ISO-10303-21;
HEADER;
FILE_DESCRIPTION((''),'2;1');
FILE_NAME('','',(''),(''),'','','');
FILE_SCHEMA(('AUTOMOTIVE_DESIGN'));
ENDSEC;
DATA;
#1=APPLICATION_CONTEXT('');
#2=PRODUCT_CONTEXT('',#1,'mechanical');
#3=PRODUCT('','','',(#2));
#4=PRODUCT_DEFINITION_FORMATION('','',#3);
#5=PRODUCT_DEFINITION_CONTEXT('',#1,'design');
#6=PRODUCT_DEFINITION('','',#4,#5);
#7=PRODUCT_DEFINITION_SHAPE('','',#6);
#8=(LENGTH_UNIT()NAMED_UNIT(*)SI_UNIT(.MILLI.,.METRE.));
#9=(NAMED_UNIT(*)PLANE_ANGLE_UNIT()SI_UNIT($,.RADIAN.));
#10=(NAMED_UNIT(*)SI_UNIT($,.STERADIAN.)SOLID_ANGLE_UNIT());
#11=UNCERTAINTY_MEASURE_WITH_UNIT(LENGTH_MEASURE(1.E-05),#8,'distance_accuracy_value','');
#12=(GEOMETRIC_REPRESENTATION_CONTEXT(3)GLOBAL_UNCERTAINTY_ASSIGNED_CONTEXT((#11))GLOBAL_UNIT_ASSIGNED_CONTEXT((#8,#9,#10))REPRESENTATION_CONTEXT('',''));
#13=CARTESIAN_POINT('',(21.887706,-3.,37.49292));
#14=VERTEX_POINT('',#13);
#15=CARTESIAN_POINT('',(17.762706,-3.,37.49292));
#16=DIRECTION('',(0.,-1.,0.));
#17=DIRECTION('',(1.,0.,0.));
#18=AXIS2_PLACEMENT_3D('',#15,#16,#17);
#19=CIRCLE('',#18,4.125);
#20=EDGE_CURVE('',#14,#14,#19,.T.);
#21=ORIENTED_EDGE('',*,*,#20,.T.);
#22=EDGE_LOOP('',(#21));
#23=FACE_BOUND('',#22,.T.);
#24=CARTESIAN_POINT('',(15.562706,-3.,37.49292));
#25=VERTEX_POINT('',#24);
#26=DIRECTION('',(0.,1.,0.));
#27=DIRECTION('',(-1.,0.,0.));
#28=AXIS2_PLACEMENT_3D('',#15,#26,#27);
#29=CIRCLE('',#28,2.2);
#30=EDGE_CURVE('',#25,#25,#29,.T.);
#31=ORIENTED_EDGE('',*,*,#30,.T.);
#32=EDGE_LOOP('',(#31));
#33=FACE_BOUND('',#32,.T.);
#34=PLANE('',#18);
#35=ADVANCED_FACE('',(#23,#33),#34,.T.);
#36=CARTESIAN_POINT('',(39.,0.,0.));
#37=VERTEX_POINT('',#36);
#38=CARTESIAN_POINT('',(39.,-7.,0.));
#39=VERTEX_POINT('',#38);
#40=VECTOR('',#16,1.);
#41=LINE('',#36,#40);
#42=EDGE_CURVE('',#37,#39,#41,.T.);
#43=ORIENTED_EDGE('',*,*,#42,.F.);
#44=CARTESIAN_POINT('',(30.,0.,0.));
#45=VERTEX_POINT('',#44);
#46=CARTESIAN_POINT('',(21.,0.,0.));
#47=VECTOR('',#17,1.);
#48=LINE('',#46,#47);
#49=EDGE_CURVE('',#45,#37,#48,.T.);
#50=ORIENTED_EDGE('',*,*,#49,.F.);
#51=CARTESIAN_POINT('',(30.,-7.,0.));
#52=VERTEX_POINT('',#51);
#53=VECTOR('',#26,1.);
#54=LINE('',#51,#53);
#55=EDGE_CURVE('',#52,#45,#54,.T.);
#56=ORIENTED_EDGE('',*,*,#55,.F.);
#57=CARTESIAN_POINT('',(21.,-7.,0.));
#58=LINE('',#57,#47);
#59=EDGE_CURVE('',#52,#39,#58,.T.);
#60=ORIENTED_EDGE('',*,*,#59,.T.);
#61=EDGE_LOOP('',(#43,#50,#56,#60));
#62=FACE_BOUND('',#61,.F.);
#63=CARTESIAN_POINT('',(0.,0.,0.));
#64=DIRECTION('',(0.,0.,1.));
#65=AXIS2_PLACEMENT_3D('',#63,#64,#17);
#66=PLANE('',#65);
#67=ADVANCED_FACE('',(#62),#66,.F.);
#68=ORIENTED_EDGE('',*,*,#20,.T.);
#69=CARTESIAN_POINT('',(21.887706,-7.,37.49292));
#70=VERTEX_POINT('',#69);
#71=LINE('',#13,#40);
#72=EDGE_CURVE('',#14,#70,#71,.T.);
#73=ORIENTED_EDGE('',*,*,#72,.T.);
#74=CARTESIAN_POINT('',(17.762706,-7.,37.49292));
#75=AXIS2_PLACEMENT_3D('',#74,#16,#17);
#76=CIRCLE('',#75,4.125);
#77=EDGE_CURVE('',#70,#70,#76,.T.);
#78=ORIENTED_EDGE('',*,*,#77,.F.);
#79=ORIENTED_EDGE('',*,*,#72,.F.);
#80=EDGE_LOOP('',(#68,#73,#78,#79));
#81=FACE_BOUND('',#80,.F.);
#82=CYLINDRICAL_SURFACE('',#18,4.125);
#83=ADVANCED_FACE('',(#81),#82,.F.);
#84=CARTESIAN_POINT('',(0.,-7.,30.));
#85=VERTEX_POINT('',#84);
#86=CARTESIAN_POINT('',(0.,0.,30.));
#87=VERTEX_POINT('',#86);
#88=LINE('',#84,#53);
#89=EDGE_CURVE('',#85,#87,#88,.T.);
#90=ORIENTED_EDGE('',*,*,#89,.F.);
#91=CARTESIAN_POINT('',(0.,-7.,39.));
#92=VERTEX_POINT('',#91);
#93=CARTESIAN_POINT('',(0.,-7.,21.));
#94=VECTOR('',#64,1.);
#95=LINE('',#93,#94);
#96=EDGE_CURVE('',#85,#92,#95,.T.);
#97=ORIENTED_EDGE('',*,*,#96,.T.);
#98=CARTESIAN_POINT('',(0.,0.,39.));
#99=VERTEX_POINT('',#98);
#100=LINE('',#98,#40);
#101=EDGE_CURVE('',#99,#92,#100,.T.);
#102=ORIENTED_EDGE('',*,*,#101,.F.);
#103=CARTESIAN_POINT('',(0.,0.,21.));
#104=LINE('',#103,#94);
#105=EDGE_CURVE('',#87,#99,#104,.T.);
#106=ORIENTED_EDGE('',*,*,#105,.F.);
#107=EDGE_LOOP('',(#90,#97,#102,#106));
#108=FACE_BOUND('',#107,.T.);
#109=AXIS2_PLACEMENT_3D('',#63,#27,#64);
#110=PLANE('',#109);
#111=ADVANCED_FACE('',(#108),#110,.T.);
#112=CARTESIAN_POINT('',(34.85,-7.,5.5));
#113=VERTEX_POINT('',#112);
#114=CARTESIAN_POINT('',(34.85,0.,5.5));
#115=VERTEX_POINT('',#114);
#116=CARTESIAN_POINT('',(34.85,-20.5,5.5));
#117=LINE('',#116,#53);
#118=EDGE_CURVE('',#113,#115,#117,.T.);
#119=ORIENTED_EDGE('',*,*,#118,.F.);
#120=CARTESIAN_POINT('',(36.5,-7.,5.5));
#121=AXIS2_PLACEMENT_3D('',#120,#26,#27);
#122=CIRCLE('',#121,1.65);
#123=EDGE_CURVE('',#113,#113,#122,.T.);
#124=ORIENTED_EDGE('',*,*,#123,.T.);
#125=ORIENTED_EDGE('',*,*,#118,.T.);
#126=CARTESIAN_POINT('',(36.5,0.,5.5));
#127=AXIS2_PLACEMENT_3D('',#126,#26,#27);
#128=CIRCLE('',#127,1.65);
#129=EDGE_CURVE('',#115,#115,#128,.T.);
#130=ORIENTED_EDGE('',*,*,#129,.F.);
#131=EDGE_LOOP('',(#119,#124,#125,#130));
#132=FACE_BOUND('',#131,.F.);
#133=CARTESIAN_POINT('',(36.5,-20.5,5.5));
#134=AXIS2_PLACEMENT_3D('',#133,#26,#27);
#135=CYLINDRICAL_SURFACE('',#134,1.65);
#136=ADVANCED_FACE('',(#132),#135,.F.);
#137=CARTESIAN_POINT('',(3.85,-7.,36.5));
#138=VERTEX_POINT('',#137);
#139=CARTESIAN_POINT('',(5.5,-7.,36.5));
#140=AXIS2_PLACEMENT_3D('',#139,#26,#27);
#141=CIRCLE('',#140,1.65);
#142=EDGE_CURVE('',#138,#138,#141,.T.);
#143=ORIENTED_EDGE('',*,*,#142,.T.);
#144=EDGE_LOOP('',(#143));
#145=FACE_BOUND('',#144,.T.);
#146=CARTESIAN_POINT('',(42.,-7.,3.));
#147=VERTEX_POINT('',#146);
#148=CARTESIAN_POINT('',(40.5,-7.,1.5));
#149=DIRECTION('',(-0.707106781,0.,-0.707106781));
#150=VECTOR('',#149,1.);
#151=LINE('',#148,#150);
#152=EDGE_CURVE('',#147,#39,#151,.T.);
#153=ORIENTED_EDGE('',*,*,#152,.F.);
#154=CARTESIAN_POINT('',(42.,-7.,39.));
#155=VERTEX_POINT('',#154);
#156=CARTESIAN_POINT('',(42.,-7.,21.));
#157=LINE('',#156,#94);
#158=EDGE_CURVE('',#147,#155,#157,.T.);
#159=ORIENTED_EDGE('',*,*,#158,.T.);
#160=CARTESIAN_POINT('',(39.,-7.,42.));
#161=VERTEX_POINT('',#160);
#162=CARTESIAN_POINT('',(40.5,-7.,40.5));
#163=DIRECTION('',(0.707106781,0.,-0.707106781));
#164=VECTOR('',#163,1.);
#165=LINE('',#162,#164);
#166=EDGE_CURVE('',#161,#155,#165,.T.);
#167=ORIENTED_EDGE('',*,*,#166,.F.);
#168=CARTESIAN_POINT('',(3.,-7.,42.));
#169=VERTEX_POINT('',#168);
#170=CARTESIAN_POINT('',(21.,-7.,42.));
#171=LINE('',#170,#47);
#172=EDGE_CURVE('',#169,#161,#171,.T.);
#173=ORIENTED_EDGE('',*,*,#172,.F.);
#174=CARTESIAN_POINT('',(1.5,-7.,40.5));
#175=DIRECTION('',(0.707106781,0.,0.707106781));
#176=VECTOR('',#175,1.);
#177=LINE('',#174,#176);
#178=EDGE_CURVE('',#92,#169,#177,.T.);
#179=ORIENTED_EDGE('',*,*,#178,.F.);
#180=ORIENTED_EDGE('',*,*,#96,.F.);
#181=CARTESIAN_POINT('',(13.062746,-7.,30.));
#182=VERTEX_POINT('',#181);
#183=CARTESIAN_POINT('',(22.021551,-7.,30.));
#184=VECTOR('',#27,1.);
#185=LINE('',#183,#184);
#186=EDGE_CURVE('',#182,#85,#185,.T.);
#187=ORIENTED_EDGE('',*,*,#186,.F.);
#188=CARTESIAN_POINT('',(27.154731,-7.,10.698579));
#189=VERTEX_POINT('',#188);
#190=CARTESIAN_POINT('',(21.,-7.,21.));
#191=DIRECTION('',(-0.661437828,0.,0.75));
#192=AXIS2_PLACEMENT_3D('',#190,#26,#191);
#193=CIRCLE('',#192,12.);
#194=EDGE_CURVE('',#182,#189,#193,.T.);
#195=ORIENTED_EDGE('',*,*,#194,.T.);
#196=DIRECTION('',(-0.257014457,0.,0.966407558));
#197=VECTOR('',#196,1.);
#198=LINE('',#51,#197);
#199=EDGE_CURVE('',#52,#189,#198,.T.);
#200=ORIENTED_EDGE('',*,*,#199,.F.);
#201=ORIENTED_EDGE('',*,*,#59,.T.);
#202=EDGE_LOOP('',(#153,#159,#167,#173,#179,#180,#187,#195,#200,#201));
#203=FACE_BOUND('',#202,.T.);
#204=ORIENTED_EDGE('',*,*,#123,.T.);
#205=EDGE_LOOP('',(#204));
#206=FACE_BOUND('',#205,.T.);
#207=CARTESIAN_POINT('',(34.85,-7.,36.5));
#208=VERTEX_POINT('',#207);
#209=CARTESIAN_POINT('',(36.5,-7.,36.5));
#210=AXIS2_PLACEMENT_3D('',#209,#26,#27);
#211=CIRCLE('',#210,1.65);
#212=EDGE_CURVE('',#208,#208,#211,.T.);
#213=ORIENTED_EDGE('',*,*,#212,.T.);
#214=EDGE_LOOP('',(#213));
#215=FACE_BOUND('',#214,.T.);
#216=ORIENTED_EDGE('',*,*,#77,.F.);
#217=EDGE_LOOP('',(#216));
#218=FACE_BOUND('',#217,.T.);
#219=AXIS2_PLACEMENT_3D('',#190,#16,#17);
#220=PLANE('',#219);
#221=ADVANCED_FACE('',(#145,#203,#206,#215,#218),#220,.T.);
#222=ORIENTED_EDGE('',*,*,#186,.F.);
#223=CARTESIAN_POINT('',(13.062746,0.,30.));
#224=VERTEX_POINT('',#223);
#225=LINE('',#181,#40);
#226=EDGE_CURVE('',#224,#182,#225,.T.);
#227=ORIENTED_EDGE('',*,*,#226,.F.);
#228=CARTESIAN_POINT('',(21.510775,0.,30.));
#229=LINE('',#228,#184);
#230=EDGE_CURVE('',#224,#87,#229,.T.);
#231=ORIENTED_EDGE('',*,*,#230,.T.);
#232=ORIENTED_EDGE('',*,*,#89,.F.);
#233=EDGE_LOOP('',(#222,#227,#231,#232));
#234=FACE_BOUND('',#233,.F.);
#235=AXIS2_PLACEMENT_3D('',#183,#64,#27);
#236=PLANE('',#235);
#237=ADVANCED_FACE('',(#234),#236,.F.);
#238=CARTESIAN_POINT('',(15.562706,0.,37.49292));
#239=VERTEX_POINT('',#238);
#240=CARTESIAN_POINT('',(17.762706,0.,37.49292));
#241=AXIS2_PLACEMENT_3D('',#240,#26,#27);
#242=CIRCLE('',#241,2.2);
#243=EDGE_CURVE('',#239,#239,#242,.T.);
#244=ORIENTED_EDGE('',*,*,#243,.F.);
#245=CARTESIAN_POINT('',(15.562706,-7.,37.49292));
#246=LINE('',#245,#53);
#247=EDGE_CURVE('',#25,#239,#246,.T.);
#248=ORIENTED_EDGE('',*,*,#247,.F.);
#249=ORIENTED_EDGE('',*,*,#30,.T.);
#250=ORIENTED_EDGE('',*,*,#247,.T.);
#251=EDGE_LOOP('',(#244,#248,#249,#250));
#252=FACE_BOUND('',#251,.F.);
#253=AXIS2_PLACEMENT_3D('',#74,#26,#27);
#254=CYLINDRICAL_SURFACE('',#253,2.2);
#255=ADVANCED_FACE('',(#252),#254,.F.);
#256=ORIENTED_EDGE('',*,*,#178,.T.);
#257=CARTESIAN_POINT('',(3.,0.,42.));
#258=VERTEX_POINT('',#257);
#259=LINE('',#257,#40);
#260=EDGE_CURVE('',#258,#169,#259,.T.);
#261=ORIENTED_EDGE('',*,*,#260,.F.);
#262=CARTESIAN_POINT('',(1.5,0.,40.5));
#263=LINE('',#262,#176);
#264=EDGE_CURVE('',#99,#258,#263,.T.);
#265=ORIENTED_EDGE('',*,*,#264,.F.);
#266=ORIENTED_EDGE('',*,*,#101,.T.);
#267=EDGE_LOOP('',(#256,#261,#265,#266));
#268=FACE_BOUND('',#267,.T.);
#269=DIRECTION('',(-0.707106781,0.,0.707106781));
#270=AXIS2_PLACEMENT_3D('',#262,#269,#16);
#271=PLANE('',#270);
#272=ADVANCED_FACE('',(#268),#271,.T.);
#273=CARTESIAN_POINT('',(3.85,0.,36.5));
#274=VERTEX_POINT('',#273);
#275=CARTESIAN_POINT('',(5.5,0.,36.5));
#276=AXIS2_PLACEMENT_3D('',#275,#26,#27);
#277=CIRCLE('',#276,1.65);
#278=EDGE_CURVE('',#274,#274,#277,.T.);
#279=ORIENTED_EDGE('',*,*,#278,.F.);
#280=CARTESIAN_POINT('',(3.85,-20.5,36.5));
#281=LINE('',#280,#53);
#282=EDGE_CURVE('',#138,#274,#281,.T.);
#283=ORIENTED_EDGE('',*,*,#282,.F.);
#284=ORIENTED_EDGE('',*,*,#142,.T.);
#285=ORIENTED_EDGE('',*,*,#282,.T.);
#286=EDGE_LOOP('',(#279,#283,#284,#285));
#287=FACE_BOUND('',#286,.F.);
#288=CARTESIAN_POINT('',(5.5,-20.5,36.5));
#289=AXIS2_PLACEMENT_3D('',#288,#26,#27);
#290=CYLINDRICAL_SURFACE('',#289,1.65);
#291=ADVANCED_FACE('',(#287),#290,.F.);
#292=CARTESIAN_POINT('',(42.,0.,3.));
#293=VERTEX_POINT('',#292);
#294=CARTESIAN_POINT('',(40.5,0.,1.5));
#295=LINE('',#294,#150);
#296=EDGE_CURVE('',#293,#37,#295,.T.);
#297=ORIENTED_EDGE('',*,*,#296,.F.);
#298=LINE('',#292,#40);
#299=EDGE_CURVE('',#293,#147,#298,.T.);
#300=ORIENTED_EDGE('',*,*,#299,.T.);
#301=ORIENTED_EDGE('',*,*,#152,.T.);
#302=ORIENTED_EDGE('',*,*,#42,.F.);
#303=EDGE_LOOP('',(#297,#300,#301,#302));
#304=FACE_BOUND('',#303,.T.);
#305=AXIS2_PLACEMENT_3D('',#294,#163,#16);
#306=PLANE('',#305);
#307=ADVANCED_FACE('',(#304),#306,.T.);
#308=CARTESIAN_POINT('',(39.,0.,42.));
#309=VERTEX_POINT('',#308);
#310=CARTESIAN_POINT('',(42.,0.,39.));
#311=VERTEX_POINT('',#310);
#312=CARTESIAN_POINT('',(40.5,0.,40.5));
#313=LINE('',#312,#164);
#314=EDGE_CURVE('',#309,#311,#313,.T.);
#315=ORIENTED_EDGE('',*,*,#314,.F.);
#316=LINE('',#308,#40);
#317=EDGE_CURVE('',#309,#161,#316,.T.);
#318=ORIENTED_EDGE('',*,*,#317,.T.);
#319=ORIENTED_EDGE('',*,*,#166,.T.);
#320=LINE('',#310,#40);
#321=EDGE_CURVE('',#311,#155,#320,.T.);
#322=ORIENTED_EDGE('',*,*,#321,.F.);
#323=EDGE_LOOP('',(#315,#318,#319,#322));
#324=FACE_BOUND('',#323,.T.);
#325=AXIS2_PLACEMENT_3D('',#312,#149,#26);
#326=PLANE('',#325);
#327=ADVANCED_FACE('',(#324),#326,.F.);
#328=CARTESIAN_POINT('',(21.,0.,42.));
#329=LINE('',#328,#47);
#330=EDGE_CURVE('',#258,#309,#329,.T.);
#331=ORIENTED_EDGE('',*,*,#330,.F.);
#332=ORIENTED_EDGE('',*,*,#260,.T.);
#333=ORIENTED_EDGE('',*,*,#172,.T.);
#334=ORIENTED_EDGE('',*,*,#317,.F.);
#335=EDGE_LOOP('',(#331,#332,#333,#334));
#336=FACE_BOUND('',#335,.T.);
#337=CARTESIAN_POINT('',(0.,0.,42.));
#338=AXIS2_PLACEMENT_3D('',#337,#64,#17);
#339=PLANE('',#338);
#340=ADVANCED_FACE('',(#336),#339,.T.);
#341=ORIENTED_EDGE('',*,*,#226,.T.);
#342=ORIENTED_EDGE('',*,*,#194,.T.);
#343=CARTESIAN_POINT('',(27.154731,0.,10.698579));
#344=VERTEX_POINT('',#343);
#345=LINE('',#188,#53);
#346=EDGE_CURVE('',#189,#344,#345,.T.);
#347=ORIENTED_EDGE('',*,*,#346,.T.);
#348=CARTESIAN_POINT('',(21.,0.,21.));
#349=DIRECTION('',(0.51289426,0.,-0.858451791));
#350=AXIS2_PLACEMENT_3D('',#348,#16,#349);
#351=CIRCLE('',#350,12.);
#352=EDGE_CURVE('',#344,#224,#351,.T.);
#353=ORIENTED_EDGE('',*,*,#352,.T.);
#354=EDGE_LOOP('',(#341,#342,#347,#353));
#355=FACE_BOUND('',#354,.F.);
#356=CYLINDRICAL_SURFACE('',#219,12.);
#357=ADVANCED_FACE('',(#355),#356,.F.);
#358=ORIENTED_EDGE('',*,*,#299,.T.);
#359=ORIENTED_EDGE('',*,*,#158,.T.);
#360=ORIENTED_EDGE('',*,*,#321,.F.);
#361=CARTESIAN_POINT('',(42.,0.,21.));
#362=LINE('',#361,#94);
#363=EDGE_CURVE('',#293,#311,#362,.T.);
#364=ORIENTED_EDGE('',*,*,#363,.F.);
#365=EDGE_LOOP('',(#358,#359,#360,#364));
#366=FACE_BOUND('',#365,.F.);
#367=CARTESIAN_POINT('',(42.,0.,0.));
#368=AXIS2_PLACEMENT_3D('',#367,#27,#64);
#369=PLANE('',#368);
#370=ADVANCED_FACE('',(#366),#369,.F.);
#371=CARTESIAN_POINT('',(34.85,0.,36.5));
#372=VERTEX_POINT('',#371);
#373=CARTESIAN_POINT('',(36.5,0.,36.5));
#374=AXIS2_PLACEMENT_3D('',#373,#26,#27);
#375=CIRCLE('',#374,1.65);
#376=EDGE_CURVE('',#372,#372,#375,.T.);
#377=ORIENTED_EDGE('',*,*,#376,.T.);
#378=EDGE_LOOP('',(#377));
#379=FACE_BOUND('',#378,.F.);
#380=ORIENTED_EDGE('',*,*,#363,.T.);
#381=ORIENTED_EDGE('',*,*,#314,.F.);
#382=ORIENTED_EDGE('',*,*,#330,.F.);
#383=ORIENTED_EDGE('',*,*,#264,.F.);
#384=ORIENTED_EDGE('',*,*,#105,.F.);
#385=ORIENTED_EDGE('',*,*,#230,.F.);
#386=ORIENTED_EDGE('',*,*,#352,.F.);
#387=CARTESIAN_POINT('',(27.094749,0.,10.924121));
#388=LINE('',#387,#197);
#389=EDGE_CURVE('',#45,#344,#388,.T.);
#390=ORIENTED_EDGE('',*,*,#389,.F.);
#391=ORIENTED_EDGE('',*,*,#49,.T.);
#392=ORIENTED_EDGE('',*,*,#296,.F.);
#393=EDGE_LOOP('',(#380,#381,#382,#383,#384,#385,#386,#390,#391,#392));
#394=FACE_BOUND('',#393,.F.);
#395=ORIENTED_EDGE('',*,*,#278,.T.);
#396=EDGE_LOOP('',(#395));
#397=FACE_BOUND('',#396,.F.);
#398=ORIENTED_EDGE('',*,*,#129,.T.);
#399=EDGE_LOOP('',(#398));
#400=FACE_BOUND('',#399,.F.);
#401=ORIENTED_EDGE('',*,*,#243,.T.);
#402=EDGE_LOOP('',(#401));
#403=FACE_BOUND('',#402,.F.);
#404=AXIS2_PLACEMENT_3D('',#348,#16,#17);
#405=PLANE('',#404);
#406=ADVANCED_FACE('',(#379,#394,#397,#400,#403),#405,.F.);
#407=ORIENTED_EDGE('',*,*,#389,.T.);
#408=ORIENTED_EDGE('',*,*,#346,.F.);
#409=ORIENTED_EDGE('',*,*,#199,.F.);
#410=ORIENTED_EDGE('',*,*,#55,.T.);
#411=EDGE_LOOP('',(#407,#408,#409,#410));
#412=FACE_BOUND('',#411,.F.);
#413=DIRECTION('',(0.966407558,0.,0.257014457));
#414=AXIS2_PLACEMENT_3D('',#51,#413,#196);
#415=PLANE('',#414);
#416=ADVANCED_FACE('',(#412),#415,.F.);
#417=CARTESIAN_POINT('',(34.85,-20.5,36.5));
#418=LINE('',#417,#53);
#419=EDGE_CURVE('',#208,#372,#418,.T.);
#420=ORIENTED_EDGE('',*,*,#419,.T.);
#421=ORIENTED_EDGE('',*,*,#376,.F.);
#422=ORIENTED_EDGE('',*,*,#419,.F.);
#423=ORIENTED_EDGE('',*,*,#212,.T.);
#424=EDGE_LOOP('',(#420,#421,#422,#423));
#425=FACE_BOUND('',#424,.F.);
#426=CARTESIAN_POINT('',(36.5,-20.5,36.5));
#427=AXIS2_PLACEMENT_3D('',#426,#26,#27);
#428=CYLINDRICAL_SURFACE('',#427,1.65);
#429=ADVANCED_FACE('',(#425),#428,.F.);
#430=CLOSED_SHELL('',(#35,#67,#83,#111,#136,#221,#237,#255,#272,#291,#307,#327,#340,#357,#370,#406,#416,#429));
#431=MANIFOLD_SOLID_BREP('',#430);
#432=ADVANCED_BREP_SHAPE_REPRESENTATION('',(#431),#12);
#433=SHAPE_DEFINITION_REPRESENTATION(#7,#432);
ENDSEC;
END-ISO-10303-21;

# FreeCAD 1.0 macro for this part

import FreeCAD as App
import Part
import Sketcher
Q = App.Units.Quantity


def edges_at(feature, points):
    """Names of the edges that pass closest to the given points."""
    edges = feature.Shape.Edges
    near = lambda p: min(range(len(edges)), key=lambda i: edges[i].distToShape(Part.Vertex(*p))[0])
    return sorted({f"Edge{near(p) + 1}" for p in points})


def add_polygon(sketch, points):
    """Adds a closed chain of lines whose ends are joined by coincident constraints."""
    first, n = sketch.GeometryCount, len(points)
    for a, b in zip(points, points[1:] + points[:1]):
        sketch.addGeometry(Part.LineSegment(App.Vector(*a, 0), App.Vector(*b, 0)), False)
    for i in range(n):
        sketch.addConstraint(Sketcher.Constraint("Coincident", first + i, 2, first + (i + 1) % n, 1))

doc = App.newDocument("Part")
body = doc.addObject("PartDesign::Body", "Body")

# Sketch on XZ plane
sketch1 = body.newObject("Sketcher::SketchObject", "Sketch")
sketch1.AttachmentSupport = (doc.getObject("XZ_Plane"), [""])
sketch1.MapMode = "FlatFace"
add_polygon(sketch1, [(0, 42), (0, 0), (42, 0), (42, 42)])  # lines 0-3
sketch1.addConstraint(Sketcher.Constraint("Vertical", 0))
sketch1.addConstraint(Sketcher.Constraint("Horizontal", 1))
sketch1.addConstraint(Sketcher.Constraint("Vertical", 2))
sketch1.addConstraint(Sketcher.Constraint("Horizontal", 3))
sketch1.addConstraint(Sketcher.Constraint("Coincident", 0, 2, -1, 1))
sketch1.addConstraint(Sketcher.Constraint("Equal", 3, 0))
sketch1.addConstraint(Sketcher.Constraint("DistanceX", 1, 1, 1, 2, Q("42 mm")))
pad1 = body.newObject("PartDesign::Pad", "Pad")
pad1.Profile = sketch1
pad1.Length = 7

# Sketch on XZ plane
sketch2 = body.newObject("Sketcher::SketchObject", "Sketch001")
sketch2.AttachmentSupport = (doc.getObject("XZ_Plane"), [""])
sketch2.MapMode = "FlatFace"
sketch2.AttachmentOffset = App.Placement(App.Vector(0, 0, 7), App.Rotation())
sketch2.addGeometry(Part.Circle(App.Vector(21, 21, 0), App.Vector(0, 0, 1), 12), False)
sketch2.addConstraint(Sketcher.Constraint("Diameter", 0, Q("24 mm")))
sketch2.addConstraint(Sketcher.Constraint("DistanceX", -1, 1, 0, 3, Q("21 mm")))
sketch2.addConstraint(Sketcher.Constraint("DistanceY", -1, 1, 0, 3, Q("21 mm")))
pocket1 = body.newObject("PartDesign::Pocket", "Pocket")
pocket1.Profile = sketch2
pocket1.Length = 25

# Sketch on XZ plane
sketch3 = body.newObject("Sketcher::SketchObject", "Sketch002")
sketch3.AttachmentSupport = (doc.getObject("XZ_Plane"), [""])
sketch3.MapMode = "FlatFace"
sketch3.AttachmentOffset = App.Placement(App.Vector(0, 0, 7), App.Rotation())
add_polygon(sketch3, [(0, 30), (0, 0), (30, 0), (27.154731, 10.698579), (22.021551, 30)])  # lines 0-4
sketch3.addConstraint(Sketcher.Constraint("Vertical", 0))
sketch3.addConstraint(Sketcher.Constraint("Horizontal", 1))
sketch3.addConstraint(Sketcher.Constraint("Horizontal", 4))
sketch3.addConstraint(Sketcher.Constraint("Coincident", 0, 2, -1, 1))
sketch3.addConstraint(Sketcher.Constraint("Parallel", 2, 3))
sketch3.addConstraint(Sketcher.Constraint("Equal", 1, 0))
sketch3.addConstraint(Sketcher.Constraint("DistanceX", 1, 1, 1, 2, Q("30 mm")))
sketch3.addConstraint(Sketcher.Constraint("DistanceX", 4, 2, 4, 1, Q("22.021551 mm")))
sketch3.addConstraint(Sketcher.Constraint("Distance", 3, Q("19.972341 mm")))
pocket2 = body.newObject("PartDesign::Pocket", "Pocket001")
pocket2.Profile = sketch3
pocket2.Length = 25

# Sketch on XZ plane
sketch4 = body.newObject("Sketcher::SketchObject", "Sketch003")
sketch4.AttachmentSupport = (doc.getObject("XZ_Plane"), [""])
sketch4.MapMode = "FlatFace"
sketch4.AttachmentOffset = App.Placement(App.Vector(0, 0, 7), App.Rotation())
sketch4.addGeometry(Part.Circle(App.Vector(5.5, 36.5, 0), App.Vector(0, 0, 1), 1.65), False)
sketch4.addGeometry(Part.Circle(App.Vector(36.5, 36.5, 0), App.Vector(0, 0, 1), 1.65), False)
sketch4.addGeometry(Part.Circle(App.Vector(36.5, 5.5, 0), App.Vector(0, 0, 1), 1.65), False)
sketch4.addConstraint(Sketcher.Constraint("Equal", 0, 1))
sketch4.addConstraint(Sketcher.Constraint("Equal", 1, 2))
sketch4.addConstraint(Sketcher.Constraint("Horizontal", 0, 3, 1, 3))
sketch4.addConstraint(Sketcher.Constraint("Vertical", 1, 3, 2, 3))
sketch4.addConstraint(Sketcher.Constraint("Diameter", 0, Q("3.3 mm")))
sketch4.addConstraint(Sketcher.Constraint("DistanceX", 0, 3, 1, 3, Q("31 mm")))
sketch4.addConstraint(Sketcher.Constraint("DistanceY", 2, 3, 1, 3, Q("31 mm")))
sketch4.addConstraint(Sketcher.Constraint("DistanceX", -1, 1, 0, 3, Q("5.5 mm")))
sketch4.addConstraint(Sketcher.Constraint("DistanceY", -1, 1, 0, 3, Q("36.5 mm")))
doc.recompute()
hole = body.newObject("PartDesign::Hole", "Hole")
hole.Profile = sketch4
hole.ThreadType = "None"
hole.Diameter = 3.3
hole.DepthType = "Dimension"
hole.Depth = 13.5
hole.DrillPoint = "Angled"
hole.DrillPointAngle = 118
doc.recompute()

chamfer = body.newObject("PartDesign::Chamfer", "Chamfer")
chamfer.Base = (hole, edges_at(hole, [(0, -3.5, 42), (42, -3.5, 42), (42, -3.5, 0)]))
chamfer.Size = 3

# Sketch on XZ plane
sketch5 = body.newObject("Sketcher::SketchObject", "Sketch004")
sketch5.AttachmentSupport = (doc.getObject("XZ_Plane"), [""])
sketch5.MapMode = "FlatFace"
sketch5.AttachmentOffset = App.Placement(App.Vector(0, 0, 7), App.Rotation())
sketch5.addGeometry(Part.Circle(App.Vector(17.762706, 37.49292, 0), App.Vector(0, 0, 1), 2.2), False)
sketch5.addConstraint(Sketcher.Constraint("Diameter", 0, Q("4.4 mm")))
sketch5.addConstraint(Sketcher.Constraint("DistanceY", -1, 1, 0, 3, Q("37.49292 mm")))
sketch5.addConstraint(Sketcher.Constraint("DistanceX", -1, 1, 0, 3, Q("17.762706 mm")))
doc.recompute()
hole2 = body.newObject("PartDesign::Hole", "Hole001")
hole2.Profile = sketch5
hole2.ThreadType = "None"
hole2.Diameter = 4.4
hole2.DepthType = "ThroughAll"
hole2.HoleCutType = "Counterbore"
hole2.HoleCutDiameter = 8.25
hole2.HoleCutDepth = 4

doc.recompute()
